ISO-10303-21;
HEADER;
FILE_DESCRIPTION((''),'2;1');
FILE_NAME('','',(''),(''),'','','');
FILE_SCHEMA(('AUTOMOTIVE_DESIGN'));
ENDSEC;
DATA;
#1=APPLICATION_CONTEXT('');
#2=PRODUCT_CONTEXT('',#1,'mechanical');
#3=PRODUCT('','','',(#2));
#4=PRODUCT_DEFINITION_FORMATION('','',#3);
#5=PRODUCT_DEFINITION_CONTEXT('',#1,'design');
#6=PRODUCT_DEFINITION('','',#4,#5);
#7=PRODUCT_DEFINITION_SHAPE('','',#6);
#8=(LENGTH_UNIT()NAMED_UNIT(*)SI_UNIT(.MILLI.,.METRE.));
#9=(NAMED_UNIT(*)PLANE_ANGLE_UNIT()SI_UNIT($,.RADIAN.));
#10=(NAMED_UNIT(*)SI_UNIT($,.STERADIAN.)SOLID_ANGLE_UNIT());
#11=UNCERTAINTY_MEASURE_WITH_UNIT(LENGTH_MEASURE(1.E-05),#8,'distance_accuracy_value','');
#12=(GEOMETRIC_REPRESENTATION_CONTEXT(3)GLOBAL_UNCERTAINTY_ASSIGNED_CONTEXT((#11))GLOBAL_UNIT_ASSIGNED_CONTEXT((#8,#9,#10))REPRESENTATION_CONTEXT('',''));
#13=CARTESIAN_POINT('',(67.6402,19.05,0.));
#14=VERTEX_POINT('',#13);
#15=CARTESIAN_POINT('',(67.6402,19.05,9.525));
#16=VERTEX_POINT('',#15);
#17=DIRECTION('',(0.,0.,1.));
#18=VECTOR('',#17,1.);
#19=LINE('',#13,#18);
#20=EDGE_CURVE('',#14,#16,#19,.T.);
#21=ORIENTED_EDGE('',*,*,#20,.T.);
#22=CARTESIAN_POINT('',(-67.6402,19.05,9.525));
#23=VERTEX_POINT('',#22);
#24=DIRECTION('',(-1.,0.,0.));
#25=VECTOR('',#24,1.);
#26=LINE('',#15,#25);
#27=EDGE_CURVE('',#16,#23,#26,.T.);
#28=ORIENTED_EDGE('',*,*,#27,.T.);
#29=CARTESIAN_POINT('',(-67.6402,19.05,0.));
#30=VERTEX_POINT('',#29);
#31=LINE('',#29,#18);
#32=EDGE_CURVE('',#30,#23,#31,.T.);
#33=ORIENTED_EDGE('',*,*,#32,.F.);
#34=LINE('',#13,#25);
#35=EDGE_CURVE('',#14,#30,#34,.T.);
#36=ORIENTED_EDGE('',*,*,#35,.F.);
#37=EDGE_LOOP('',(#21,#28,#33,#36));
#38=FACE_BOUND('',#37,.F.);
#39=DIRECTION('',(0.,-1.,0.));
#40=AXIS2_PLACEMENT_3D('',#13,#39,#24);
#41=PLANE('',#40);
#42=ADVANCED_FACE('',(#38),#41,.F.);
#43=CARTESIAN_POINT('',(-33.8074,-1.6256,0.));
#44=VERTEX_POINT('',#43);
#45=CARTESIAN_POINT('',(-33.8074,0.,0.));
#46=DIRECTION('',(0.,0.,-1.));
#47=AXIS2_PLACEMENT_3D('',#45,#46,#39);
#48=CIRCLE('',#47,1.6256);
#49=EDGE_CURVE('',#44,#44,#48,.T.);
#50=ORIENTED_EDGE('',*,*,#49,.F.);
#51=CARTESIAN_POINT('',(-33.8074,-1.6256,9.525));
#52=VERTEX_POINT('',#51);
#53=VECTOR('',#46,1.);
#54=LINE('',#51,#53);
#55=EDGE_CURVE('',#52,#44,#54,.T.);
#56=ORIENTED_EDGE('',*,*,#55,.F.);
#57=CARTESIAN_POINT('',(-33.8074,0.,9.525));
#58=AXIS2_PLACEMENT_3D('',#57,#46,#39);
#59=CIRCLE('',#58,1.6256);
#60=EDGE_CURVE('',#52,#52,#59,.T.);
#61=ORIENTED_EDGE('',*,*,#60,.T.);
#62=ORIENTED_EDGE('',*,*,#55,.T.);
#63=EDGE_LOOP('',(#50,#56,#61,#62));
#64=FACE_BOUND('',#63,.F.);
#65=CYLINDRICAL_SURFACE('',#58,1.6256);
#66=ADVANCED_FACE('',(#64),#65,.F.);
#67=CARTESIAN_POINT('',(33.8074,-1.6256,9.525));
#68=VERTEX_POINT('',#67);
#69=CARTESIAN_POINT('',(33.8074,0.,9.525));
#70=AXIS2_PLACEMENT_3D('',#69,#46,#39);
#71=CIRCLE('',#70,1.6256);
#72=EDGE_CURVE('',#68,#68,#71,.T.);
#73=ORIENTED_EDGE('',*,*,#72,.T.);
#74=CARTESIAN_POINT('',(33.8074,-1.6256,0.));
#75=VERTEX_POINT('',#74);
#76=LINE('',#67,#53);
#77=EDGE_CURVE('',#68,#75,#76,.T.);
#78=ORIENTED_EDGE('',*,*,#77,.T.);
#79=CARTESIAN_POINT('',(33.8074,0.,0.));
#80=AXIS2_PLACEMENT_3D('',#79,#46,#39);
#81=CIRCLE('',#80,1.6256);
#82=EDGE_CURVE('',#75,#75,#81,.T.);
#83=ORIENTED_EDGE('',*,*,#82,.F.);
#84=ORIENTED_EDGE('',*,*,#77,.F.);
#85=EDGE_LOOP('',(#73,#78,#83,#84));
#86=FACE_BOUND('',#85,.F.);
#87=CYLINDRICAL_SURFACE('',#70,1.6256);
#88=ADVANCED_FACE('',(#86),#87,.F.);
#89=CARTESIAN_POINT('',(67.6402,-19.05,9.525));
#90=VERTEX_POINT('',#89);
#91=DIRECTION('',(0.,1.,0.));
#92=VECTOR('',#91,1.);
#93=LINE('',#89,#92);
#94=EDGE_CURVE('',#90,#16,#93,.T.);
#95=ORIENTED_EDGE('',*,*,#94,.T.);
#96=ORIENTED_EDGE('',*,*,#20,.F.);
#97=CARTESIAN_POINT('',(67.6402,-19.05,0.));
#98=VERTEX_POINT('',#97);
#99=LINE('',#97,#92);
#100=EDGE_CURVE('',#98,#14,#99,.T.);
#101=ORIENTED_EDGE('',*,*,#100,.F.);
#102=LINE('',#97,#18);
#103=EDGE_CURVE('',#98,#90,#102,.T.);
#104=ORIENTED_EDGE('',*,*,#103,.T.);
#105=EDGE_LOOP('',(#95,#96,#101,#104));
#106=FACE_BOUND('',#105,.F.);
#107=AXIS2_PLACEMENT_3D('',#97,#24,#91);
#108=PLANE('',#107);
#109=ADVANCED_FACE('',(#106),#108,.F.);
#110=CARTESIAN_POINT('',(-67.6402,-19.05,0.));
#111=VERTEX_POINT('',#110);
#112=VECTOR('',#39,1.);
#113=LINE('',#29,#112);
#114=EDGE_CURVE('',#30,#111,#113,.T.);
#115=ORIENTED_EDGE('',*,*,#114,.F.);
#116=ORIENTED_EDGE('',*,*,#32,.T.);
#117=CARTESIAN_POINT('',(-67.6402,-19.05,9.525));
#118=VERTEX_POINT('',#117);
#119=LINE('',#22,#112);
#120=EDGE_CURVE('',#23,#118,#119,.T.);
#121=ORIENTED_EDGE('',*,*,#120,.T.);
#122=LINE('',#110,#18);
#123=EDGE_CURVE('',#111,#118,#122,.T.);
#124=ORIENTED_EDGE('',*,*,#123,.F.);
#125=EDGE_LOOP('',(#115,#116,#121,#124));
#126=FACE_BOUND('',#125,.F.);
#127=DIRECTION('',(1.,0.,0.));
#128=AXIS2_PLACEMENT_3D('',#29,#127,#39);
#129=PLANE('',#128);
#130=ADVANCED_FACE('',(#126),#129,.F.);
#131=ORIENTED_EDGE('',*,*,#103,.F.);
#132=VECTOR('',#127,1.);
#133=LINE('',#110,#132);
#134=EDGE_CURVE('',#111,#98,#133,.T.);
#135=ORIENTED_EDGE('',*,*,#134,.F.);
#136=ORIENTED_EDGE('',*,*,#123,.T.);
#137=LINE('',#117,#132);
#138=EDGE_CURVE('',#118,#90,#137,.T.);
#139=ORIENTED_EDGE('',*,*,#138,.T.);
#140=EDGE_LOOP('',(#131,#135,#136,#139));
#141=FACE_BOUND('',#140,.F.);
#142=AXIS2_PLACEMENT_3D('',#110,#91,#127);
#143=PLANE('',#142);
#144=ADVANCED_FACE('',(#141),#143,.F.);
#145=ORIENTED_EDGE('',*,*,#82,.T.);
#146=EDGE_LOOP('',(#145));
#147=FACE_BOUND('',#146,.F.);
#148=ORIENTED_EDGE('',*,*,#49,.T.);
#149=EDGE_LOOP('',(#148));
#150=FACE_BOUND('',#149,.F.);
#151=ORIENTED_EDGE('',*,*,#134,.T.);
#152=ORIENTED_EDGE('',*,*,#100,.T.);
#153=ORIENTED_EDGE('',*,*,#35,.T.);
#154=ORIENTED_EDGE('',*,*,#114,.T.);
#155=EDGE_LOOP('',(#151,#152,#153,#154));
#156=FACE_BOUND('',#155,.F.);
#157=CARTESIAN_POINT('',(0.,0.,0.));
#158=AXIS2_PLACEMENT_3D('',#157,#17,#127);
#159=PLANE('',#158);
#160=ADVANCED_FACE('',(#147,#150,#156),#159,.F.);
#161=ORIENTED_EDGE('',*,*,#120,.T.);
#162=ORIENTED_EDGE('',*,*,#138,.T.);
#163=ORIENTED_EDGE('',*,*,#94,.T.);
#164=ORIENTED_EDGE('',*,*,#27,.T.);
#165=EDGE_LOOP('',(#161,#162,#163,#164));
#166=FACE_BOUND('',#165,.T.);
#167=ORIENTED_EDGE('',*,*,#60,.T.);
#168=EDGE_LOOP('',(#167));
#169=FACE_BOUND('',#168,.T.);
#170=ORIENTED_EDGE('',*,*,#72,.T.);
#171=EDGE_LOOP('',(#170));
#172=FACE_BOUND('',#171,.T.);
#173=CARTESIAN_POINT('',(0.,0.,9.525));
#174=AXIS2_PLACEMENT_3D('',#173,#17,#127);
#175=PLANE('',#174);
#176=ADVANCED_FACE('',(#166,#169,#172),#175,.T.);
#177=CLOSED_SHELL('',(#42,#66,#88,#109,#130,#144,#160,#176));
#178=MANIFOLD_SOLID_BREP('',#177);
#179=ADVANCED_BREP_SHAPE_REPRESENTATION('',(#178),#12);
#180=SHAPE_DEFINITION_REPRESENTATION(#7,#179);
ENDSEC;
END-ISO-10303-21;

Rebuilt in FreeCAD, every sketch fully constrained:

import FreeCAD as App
import Part
import Sketcher
from FreeCAD import Vector
Q = App.Units.Quantity

doc = App.newDocument("Part")
body = doc.addObject("PartDesign::Body", "Body")

# Sketch on XY plane
sketch1 = body.newObject("Sketcher::SketchObject", "Sketch")
sketch1.AttachmentSupport = (doc.getObject("XY_Plane"), [""])
sketch1.MapMode = "FlatFace"
sketch1.addGeometry([
    Part.LineSegment(Vector(-68, 19, 0), Vector(-68, -19, 0)),
    Part.LineSegment(Vector(-68, -19, 0), Vector(68, -19, 0)),
    Part.LineSegment(Vector(68, -19, 0), Vector(68, 19, 0)),
    Part.LineSegment(Vector(68, 19, 0), Vector(-68, 19, 0)),
], False)
sketch1.addConstraint([
    Sketcher.Constraint("Coincident", 0, 2, 1, 1),
    Sketcher.Constraint("Coincident", 1, 2, 2, 1),
    Sketcher.Constraint("Coincident", 2, 2, 3, 1),
    Sketcher.Constraint("Coincident", 3, 2, 0, 1),
    Sketcher.Constraint("Vertical", 0),
    Sketcher.Constraint("Horizontal", 1),
    Sketcher.Constraint("Vertical", 2),
    Sketcher.Constraint("Horizontal", 3),
    Sketcher.Constraint("Symmetric", 0, 2, 2, 2, -1, 1),
    Sketcher.Constraint("DistanceY", 0, 2, 0, 1, Q("1.5 in")),
    Sketcher.Constraint("DistanceX", 1, 1, 1, 2, Q("5.326 in")),
])
pad1 = body.newObject("PartDesign::Pad", "Pad")
pad1.Profile = sketch1
pad1.Length = Q("0.375 in")

# Sketch on XY plane
sketch2 = body.newObject("Sketcher::SketchObject", "Sketch001")
sketch2.AttachmentSupport = (doc.getObject("XY_Plane"), [""])
sketch2.MapMode = "FlatFace"
sketch2.AttachmentOffset = App.Placement(Vector(0, 0, 0.375 * 25.4), App.Rotation())
sketch2.addGeometry([
    Part.Circle(Vector(-33.8, 0, 0), Vector(0, 0, 1), 1.6),
    Part.Circle(Vector(33.8, 0, 0), Vector(0, 0, 1), 1.6),
], False)
sketch2.addConstraint([
    Sketcher.Constraint("Equal", 0, 1),
    Sketcher.Constraint("Symmetric", 0, 3, 1, 3, -1, 1),
    Sketcher.Constraint("PointOnObject", 0, 3, -1),
    Sketcher.Constraint("Diameter", 0, Q("0.128 in")),
    Sketcher.Constraint("DistanceX", 0, 3, -1, 1, Q("1.331 in")),
])
doc.recompute()
hole = body.newObject("PartDesign::Hole", "Hole")
hole.Profile = sketch2
hole.ThreadType = "None"
hole.Diameter = Q("0.128 in")
hole.DepthType = "ThroughAll"

doc.recompute()
